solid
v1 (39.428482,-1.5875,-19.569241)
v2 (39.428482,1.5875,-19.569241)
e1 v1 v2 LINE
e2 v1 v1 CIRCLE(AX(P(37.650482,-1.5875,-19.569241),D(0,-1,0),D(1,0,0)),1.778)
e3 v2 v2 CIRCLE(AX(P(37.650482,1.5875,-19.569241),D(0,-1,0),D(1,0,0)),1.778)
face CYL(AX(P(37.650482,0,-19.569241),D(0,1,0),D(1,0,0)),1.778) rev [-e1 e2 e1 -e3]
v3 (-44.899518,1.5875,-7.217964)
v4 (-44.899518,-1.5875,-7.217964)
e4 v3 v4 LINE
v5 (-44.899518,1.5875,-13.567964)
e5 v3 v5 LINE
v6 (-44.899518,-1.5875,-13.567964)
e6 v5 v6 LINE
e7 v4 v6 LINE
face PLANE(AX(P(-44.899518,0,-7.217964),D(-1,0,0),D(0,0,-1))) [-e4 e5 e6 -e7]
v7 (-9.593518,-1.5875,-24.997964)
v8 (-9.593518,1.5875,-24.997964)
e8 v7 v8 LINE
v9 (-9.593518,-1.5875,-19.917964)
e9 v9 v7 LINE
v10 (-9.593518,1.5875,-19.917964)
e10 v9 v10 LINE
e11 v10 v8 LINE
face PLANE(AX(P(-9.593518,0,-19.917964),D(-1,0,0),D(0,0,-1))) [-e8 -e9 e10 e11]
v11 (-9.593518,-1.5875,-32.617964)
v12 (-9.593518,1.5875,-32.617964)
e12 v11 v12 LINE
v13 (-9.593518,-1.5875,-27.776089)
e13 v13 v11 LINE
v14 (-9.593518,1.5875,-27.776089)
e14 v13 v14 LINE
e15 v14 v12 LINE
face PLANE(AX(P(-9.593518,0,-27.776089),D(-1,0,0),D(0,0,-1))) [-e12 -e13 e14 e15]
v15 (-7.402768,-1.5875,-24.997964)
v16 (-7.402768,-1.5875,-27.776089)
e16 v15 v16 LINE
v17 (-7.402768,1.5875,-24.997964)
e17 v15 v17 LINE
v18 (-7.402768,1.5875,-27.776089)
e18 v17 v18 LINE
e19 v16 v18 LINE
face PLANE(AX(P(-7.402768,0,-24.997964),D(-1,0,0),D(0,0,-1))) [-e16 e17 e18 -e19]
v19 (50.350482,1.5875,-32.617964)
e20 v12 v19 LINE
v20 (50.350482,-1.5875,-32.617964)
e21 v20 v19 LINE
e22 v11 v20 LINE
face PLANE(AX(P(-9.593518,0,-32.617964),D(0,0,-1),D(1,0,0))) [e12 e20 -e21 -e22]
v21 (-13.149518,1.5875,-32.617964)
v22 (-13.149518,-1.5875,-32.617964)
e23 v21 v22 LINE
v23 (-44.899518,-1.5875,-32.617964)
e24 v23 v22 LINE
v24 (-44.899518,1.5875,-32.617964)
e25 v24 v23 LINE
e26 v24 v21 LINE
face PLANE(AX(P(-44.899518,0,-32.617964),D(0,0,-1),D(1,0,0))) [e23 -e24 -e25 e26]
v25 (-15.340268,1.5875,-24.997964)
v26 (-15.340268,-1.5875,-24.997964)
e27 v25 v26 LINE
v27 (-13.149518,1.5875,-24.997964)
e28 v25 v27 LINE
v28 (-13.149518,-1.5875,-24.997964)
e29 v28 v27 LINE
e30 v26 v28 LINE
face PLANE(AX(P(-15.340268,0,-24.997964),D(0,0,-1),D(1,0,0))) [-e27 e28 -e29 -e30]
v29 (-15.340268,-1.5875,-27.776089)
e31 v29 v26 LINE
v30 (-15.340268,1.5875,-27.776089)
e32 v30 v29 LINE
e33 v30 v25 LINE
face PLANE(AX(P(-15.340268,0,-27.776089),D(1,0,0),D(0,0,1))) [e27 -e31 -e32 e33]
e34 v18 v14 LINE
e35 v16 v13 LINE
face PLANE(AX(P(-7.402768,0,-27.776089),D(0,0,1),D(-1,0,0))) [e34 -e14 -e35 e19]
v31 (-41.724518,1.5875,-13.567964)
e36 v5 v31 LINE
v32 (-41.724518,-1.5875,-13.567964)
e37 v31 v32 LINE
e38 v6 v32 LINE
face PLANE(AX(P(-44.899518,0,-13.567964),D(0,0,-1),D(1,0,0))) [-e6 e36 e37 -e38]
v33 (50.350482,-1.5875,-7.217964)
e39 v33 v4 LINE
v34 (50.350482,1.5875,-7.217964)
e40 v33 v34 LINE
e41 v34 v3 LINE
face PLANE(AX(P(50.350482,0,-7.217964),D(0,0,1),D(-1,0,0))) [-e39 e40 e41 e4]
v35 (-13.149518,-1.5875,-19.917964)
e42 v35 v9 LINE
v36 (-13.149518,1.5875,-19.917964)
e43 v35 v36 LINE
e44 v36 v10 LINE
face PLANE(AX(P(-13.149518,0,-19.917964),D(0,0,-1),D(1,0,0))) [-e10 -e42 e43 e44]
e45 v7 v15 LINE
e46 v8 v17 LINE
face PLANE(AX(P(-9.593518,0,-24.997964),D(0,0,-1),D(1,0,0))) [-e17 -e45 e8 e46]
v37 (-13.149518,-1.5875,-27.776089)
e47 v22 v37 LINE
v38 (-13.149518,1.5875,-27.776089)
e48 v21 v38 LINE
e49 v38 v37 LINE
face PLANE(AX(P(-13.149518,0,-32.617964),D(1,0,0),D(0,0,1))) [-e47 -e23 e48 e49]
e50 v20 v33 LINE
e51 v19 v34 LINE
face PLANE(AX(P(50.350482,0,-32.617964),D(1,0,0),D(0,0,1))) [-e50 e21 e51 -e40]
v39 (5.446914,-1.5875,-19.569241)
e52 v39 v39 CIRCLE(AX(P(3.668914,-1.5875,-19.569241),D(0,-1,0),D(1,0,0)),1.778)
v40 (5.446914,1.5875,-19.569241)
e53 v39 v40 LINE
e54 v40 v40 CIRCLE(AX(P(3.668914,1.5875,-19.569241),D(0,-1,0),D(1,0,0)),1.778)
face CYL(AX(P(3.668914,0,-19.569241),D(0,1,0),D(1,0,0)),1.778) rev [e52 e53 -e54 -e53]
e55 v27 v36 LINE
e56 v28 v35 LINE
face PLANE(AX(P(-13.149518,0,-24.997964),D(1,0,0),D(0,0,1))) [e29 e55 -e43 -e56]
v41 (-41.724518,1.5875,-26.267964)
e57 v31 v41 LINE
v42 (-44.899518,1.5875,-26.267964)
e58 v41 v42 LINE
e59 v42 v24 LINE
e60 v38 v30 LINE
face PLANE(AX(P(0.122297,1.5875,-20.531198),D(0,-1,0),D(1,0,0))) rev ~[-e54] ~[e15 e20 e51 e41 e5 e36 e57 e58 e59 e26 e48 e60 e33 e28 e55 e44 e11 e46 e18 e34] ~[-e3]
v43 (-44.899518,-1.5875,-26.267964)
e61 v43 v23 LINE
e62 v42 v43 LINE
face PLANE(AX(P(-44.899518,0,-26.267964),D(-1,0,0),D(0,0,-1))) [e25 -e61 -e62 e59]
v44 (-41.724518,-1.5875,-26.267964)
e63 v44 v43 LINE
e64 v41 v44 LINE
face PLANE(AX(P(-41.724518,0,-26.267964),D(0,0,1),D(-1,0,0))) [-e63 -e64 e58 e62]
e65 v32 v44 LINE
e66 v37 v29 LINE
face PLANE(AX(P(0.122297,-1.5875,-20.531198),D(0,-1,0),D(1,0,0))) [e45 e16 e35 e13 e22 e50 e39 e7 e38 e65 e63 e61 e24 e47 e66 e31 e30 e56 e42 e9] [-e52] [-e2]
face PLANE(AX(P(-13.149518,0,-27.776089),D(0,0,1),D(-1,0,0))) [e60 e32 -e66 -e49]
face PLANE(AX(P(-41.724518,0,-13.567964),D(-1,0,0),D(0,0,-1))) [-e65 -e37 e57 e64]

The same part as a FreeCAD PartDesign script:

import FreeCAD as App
import Part
import Sketcher
Q = App.Units.Quantity

doc = App.newDocument("Part")
body = doc.addObject("PartDesign::Body", "Body")

# Sketch on XZ plane
sketch1 = doc.addObject("Sketcher::SketchObject", "Sketch")
body.addObject(sketch1)
sketch1.AttachmentSupport = (doc.XZ_Plane, [""])
sketch1.MapMode = "FlatFace"
sketch1.addGeometry([
    Part.LineSegment(App.Vector(50.4, -7.2, 0), App.Vector(-44.9, -7.2, 0)),  # 0
    Part.LineSegment(App.Vector(-44.9, -7.2, 0), App.Vector(-44.9, -13.6, 0)),  # 1
    Part.LineSegment(App.Vector(-44.9, -13.6, 0), App.Vector(-41.7, -13.6, 0)),  # 2
    Part.LineSegment(App.Vector(-41.7, -13.6, 0), App.Vector(-41.7, -26.3, 0)),  # 3
    Part.LineSegment(App.Vector(-41.7, -26.3, 0), App.Vector(-44.9, -26.3, 0)),  # 4
    Part.LineSegment(App.Vector(-44.9, -26.3, 0), App.Vector(-44.9, -32.6, 0)),  # 5
    Part.LineSegment(App.Vector(-44.9, -32.6, 0), App.Vector(-13.1, -32.6, 0)),  # 6
    Part.LineSegment(App.Vector(-13.1, -32.6, 0), App.Vector(-13.1, -27.8, 0)),  # 7
    Part.LineSegment(App.Vector(-13.1, -27.8, 0), App.Vector(-15.3, -27.8, 0)),  # 8
    Part.LineSegment(App.Vector(-15.3, -27.8, 0), App.Vector(-15.3, -25, 0)),  # 9
    Part.LineSegment(App.Vector(-15.3, -25, 0), App.Vector(-13.1, -25, 0)),  # 10
    Part.LineSegment(App.Vector(-13.1, -25, 0), App.Vector(-13.1, -19.9, 0)),  # 11
    Part.LineSegment(App.Vector(-13.1, -19.9, 0), App.Vector(-9.6, -19.9, 0)),  # 12
    Part.LineSegment(App.Vector(-9.6, -19.9, 0), App.Vector(-9.6, -25, 0)),  # 13
    Part.LineSegment(App.Vector(-9.6, -25, 0), App.Vector(-7.4, -25, 0)),  # 14
    Part.LineSegment(App.Vector(-7.4, -25, 0), App.Vector(-7.4, -27.8, 0)),  # 15
    Part.LineSegment(App.Vector(-7.4, -27.8, 0), App.Vector(-9.6, -27.8, 0)),  # 16
    Part.LineSegment(App.Vector(-9.6, -27.8, 0), App.Vector(-9.6, -32.6, 0)),  # 17
    Part.LineSegment(App.Vector(-9.6, -32.6, 0), App.Vector(50.4, -32.6, 0)),  # 18
    Part.LineSegment(App.Vector(50.4, -32.6, 0), App.Vector(50.4, -7.2, 0)),  # 19
    Part.Circle(App.Vector(3.7, -19.6, 0), App.Vector(0, 0, 1), 1.8),  # 20
    Part.Circle(App.Vector(37.7, -19.6, 0), App.Vector(0, 0, 1), 1.8),  # 21
], False)
sketch1.addConstraint([
    Sketcher.Constraint("Coincident", 0, 2, 1, 1),
    Sketcher.Constraint("Coincident", 1, 2, 2, 1),
    Sketcher.Constraint("Coincident", 2, 2, 3, 1),
    Sketcher.Constraint("Coincident", 3, 2, 4, 1),
    Sketcher.Constraint("Coincident", 4, 2, 5, 1),
    Sketcher.Constraint("Coincident", 5, 2, 6, 1),
    Sketcher.Constraint("Coincident", 6, 2, 7, 1),
    Sketcher.Constraint("Coincident", 7, 2, 8, 1),
    Sketcher.Constraint("Coincident", 8, 2, 9, 1),
    Sketcher.Constraint("Coincident", 9, 2, 10, 1),
    Sketcher.Constraint("Coincident", 10, 2, 11, 1),
    Sketcher.Constraint("Coincident", 11, 2, 12, 1),
    Sketcher.Constraint("Coincident", 12, 2, 13, 1),
    Sketcher.Constraint("Coincident", 13, 2, 14, 1),
    Sketcher.Constraint("Coincident", 14, 2, 15, 1),
    Sketcher.Constraint("Coincident", 15, 2, 16, 1),
    Sketcher.Constraint("Coincident", 16, 2, 17, 1),
    Sketcher.Constraint("Coincident", 17, 2, 18, 1),
    Sketcher.Constraint("Coincident", 18, 2, 19, 1),
    Sketcher.Constraint("Coincident", 19, 2, 0, 1),
    Sketcher.Constraint("Horizontal", 0),
    Sketcher.Constraint("Vertical", 1),
    Sketcher.Constraint("Horizontal", 2),
    Sketcher.Constraint("Vertical", 3),
    Sketcher.Constraint("Horizontal", 4),
    Sketcher.Constraint("Vertical", 5),
    Sketcher.Constraint("Horizontal", 6),
    Sketcher.Constraint("Vertical", 7),
    Sketcher.Constraint("Horizontal", 8),
    Sketcher.Constraint("Vertical", 9),
    Sketcher.Constraint("Horizontal", 10),
    Sketcher.Constraint("Vertical", 11),
    Sketcher.Constraint("Horizontal", 12),
    Sketcher.Constraint("Vertical", 13),
    Sketcher.Constraint("Horizontal", 14),
    Sketcher.Constraint("Vertical", 15),
    Sketcher.Constraint("Horizontal", 16),
    Sketcher.Constraint("Vertical", 17),
    Sketcher.Constraint("Horizontal", 18),
    Sketcher.Constraint("Vertical", 19),
    Sketcher.Constraint("Equal", 20, 21),
    Sketcher.Constraint("Horizontal", 20, 3, 21, 3),
    Sketcher.Constraint("Horizontal", 10, 2, 13, 2),
    Sketcher.Constraint("Horizontal", 8, 2, 15, 2),
    Sketcher.Constraint("Horizontal", 6, 2, 17, 2),
    Sketcher.Constraint("Vertical", 1, 2, 4, 2),
    Sketcher.Constraint("Vertical", 7, 2, 10, 2),
    Sketcher.Constraint("Vertical", 13, 2, 16, 2),
    Sketcher.Constraint("Equal", 10, 14),
    Sketcher.Constraint("Equal", 1, 5),
    Sketcher.Constraint("Diameter", 20, Q("0.14 in")),
    Sketcher.Constraint("DistanceY", 19, 1, 19, 2, Q("1 in")),
    Sketcher.Constraint("DistanceY", 3, 2, 3, 1, Q("0.5 in")),
    Sketcher.Constraint("DistanceY", 11, 1, 11, 2, Q("0.2 in")),
    Sketcher.Constraint("DistanceX", 0, 2, 0, 1, Q("3.75 in")),
    Sketcher.Constraint("DistanceX", 6, 1, 6, 2, Q("1.25 in")),
    Sketcher.Constraint("DistanceX", 12, 1, 12, 2, Q("0.14 in")),
    Sketcher.Constraint("DistanceY", 6, 2, 9, 2, Q("0.3 in")),
    Sketcher.Constraint("DistanceX", 21, 3, 18, 2, Q("0.5 in")),
    Sketcher.Constraint("DistanceX", 2, 1, 2, 2, Q("0.125 in")),
    Sketcher.Constraint("DistanceY", 9, 1, 9, 2, Q("0.109375 in")),
    Sketcher.Constraint("DistanceX", 8, 2, 8, 1, Q("2.19075 mm")),
    Sketcher.Constraint("DistanceY", 20, 3, -1, 1, Q("19.569241 mm")),
    Sketcher.Constraint("DistanceX", -1, 1, 21, 3, Q("37.650482 mm")),
    Sketcher.Constraint("DistanceY", 7, 2, -1, 1, Q("27.776089 mm")),
    Sketcher.Constraint("DistanceX", 8, 2, 20, 3, Q("19.009182 mm")),
])
pad1 = doc.addObject("PartDesign::Pad", "Pad")
body.addObject(pad1)
pad1.Profile = sketch1
pad1.Length = Q("0.125 in")
pad1.Midplane = True

doc.recompute()
